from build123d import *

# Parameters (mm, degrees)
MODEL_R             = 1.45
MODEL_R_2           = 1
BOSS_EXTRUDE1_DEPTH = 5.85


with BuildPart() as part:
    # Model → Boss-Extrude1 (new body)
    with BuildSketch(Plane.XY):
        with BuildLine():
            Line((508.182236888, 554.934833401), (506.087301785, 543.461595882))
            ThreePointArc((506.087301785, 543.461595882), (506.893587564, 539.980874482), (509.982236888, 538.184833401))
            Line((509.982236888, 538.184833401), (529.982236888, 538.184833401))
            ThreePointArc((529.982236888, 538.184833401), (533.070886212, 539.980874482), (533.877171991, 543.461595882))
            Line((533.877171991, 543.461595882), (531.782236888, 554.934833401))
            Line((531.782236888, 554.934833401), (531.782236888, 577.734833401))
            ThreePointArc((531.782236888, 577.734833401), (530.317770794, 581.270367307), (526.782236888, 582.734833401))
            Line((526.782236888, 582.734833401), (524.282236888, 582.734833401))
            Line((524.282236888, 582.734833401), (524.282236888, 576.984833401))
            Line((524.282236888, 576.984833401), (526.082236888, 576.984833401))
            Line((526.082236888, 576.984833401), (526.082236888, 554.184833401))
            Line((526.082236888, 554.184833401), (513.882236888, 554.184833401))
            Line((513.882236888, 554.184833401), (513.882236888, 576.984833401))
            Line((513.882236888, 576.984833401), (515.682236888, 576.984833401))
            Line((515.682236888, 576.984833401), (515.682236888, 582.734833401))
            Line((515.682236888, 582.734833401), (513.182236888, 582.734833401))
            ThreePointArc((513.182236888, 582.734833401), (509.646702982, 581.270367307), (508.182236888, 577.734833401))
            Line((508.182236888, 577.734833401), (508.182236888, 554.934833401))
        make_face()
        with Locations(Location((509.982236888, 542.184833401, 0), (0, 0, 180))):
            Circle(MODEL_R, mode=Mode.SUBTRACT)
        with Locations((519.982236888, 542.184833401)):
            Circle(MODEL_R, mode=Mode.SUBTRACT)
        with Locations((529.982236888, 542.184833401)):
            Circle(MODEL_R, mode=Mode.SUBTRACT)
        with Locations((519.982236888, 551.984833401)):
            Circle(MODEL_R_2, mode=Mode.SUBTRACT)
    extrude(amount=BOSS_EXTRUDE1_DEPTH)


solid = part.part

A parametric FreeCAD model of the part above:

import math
import FreeCAD as App
import Part
import Sketcher

V = App.Vector
Q = App.Units.Quantity

doc = App.newDocument("Part")
body = doc.addObject("PartDesign::Body", "Body")

# Sketch on XY plane
sketch1 = body.newObject("Sketcher::SketchObject", "Sketch")
sketch1.AttachmentSupport = (doc.getObject("XY_Plane"), [""])
sketch1.MapMode = "FlatFace"
sketch1.addGeometry([
    Part.LineSegment(V(508.2, 554.9, 0), V(506.1, 543.5, 0)),  # 0
    Part.ArcOfCircle(Part.Circle(V(510.5, 542.7, 0), V(0, 0, 1), 4.5), math.radians(170), math.radians(263)),  # 1
    Part.LineSegment(V(510, 538.2, 0), V(530, 538.2, 0)),  # 2
    Part.ArcOfCircle(Part.Circle(V(529.5, 542.7, 0), V(0, 0, 1), 4.5), math.radians(-83), math.radians(10)),  # 3
    Part.LineSegment(V(533.9, 543.5, 0), V(531.8, 554.9, 0)),  # 4
    Part.LineSegment(V(531.8, 554.9, 0), V(531.8, 577.7, 0)),  # 5
    Part.ArcOfCircle(Part.Circle(V(526.8, 577.7, 0), V(0, 0, 1), 5), math.radians(0), math.radians(90)),  # 6
    Part.LineSegment(V(526.8, 582.7, 0), V(524.3, 582.7, 0)),  # 7
    Part.LineSegment(V(524.3, 582.7, 0), V(524.3, 577, 0)),  # 8
    Part.LineSegment(V(524.3, 577, 0), V(526.1, 577, 0)),  # 9
    Part.LineSegment(V(526.1, 577, 0), V(526.1, 554.2, 0)),  # 10
    Part.LineSegment(V(526.1, 554.2, 0), V(513.9, 554.2, 0)),  # 11
    Part.LineSegment(V(513.9, 554.2, 0), V(513.9, 577, 0)),  # 12
    Part.LineSegment(V(513.9, 577, 0), V(515.7, 577, 0)),  # 13
    Part.LineSegment(V(515.7, 577, 0), V(515.7, 582.7, 0)),  # 14
    Part.LineSegment(V(515.7, 582.7, 0), V(513.2, 582.7, 0)),  # 15
    Part.ArcOfCircle(Part.Circle(V(513.2, 577.7, 0), V(0, 0, 1), 5), math.radians(90), math.radians(180)),  # 16
    Part.LineSegment(V(508.2, 577.7, 0), V(508.2, 554.9, 0)),  # 17
    Part.Circle(V(510, 542.2, 0), V(0, 0, 1), 1.4),  # 18
    Part.Circle(V(520, 542.2, 0), V(0, 0, 1), 1.4),  # 19
    Part.Circle(V(530, 542.2, 0), V(0, 0, 1), 1.4),  # 20
    Part.Circle(V(520, 552, 0), V(0, 0, 1), 1),  # 21
], False)
sketch1.addConstraint([
    Sketcher.Constraint("Tangent", 0, 2, 1, 1),
    Sketcher.Constraint("Coincident", 1, 2, 2, 1),
    Sketcher.Constraint("Coincident", 2, 2, 3, 1),
    Sketcher.Constraint("Tangent", 3, 2, 4, 1),
    Sketcher.Constraint("Coincident", 4, 2, 5, 1),
    Sketcher.Constraint("Tangent", 5, 2, 6, 1),
    Sketcher.Constraint("Tangent", 6, 2, 7, 1),
    Sketcher.Constraint("Coincident", 7, 2, 8, 1),
    Sketcher.Constraint("Coincident", 8, 2, 9, 1),
    Sketcher.Constraint("Coincident", 9, 2, 10, 1),
    Sketcher.Constraint("Coincident", 10, 2, 11, 1),
    Sketcher.Constraint("Coincident", 11, 2, 12, 1),
    Sketcher.Constraint("Coincident", 12, 2, 13, 1),
    Sketcher.Constraint("Coincident", 13, 2, 14, 1),
    Sketcher.Constraint("Coincident", 14, 2, 15, 1),
    Sketcher.Constraint("Tangent", 15, 2, 16, 1),
    Sketcher.Constraint("Tangent", 16, 2, 17, 1),
    Sketcher.Constraint("Coincident", 17, 2, 0, 1),
    Sketcher.Constraint("Horizontal", 2),
    Sketcher.Constraint("Vertical", 5),
    Sketcher.Constraint("Horizontal", 7),
    Sketcher.Constraint("Vertical", 8),
    Sketcher.Constraint("Horizontal", 9),
    Sketcher.Constraint("Vertical", 10),
    Sketcher.Constraint("Horizontal", 11),
    Sketcher.Constraint("Vertical", 12),
    Sketcher.Constraint("Horizontal", 13),
    Sketcher.Constraint("Vertical", 14),
    Sketcher.Constraint("Horizontal", 15),
    Sketcher.Constraint("Vertical", 17),
    Sketcher.Constraint("Equal", 1, 3),
    Sketcher.Constraint("Equal", 6, 16),
    Sketcher.Constraint("Equal", 18, 19),
    Sketcher.Constraint("Equal", 19, 20),
    Sketcher.Constraint("Horizontal", 1, 3, 3, 3),
    Sketcher.Constraint("Horizontal", 6, 3, 16, 3),
    Sketcher.Constraint("Horizontal", 18, 3, 19, 3),
    Sketcher.Constraint("Horizontal", 19, 3, 20, 3),
    Sketcher.Constraint("Horizontal", 0, 2, 3, 2),
    Sketcher.Constraint("Horizontal", 9, 2, 12, 2),
    Sketcher.Constraint("Horizontal", 4, 2, 17, 2),
    Sketcher.Constraint("Vertical", 19, 3, 21, 3),
    Sketcher.Constraint("Vertical", 18, 3, 1, 2),
    Sketcher.Constraint("Vertical", 20, 3, 2, 2),
    Sketcher.Constraint("Equal", 9, 13),
    Sketcher.Constraint("Equal", 7, 15),
    Sketcher.Constraint("Equal", 5, 10),
    Sketcher.Constraint("Diameter", 21, Q("2 mm")),
    Sketcher.Constraint("Radius", 6, Q("5 mm")),
    Sketcher.Constraint("Diameter", 18, Q("2.9 mm")),
    Sketcher.Constraint("Radius", 1, Q("4.5 mm")),
    Sketcher.Constraint("DistanceX", 2, 1, 2, 2, Q("20 mm")),
    Sketcher.Constraint("DistanceX", 7, 2, 7, 1, Q("2.5 mm")),
    Sketcher.Constraint("DistanceX", 9, 1, 9, 2, Q("1.8 mm")),
    Sketcher.Constraint("DistanceX", 11, 2, 11, 1, Q("12.2 mm")),
    Sketcher.Constraint("DistanceY", 5, 1, 5, 2, Q("22.8 mm")),
    Sketcher.Constraint("DistanceX", 18, 3, 19, 3, Q("10 mm")),
    Sketcher.Constraint("DistanceY", 1, 2, 18, 3, Q("4 mm")),
    Sketcher.Constraint("DistanceY", 20, 3, 10, 2, Q("12 mm")),
    Sketcher.Constraint("DistanceY", 8, 2, 8, 1, Q("5.75 mm")),
    Sketcher.Constraint("DistanceY", 19, 3, 21, 3, Q("9.8 mm")),
    Sketcher.Constraint("DistanceX", -1, 1, 0, 2, Q("506.087302 mm")),
    Sketcher.Constraint("Distance", 0, Q("11.66293 mm")),
    Sketcher.Constraint("DistanceY", -1, 1, 1, 3, Q("542.653291 mm")),
])
pad1 = body.newObject("PartDesign::Pad", "Pad")
pad1.Profile = sketch1
pad1.Length = 5.85

doc.recompute()
